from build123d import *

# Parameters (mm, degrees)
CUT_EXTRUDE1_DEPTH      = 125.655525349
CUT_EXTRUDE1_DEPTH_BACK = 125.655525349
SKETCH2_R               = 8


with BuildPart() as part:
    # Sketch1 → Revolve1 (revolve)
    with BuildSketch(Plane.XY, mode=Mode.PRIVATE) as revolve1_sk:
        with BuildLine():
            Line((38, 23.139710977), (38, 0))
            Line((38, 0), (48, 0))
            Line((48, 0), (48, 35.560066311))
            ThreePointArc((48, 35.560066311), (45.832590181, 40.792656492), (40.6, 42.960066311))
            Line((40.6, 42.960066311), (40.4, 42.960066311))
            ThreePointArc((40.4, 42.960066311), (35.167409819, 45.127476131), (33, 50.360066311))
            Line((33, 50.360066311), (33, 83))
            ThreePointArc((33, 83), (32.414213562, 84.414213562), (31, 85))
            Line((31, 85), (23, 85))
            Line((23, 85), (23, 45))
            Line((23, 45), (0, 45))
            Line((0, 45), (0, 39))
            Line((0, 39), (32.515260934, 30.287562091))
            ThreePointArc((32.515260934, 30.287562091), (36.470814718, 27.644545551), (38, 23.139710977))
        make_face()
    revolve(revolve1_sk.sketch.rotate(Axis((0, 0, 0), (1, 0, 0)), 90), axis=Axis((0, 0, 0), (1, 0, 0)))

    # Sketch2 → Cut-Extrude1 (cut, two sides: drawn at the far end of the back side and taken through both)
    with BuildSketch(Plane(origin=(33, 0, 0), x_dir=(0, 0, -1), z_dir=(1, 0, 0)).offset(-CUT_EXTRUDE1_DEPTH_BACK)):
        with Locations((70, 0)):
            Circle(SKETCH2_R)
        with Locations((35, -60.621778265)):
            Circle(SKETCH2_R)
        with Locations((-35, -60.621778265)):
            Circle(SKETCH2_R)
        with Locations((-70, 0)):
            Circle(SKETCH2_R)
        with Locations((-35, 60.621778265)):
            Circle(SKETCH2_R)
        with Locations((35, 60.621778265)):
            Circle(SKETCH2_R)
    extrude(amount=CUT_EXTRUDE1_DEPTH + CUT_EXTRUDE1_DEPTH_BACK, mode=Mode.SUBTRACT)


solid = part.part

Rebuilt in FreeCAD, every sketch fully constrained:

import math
import FreeCAD as App
import Part
import Sketcher
Q = App.Units.Quantity

doc = App.newDocument("Part")
body = doc.addObject("PartDesign::Body", "Body")

sketch1 = body.newObject("Sketcher::SketchObject", "Sketch")
sketch1.AttachmentSupport = (doc.getObject("XY_Plane"), [""])
sketch1.MapMode = "FlatFace"
sketch1.addGeometry(Part.LineSegment(App.Vector(38, 23.14, 0), App.Vector(38, 0, 0)), False)
sketch1.addGeometry(Part.LineSegment(App.Vector(38, 0, 0), App.Vector(48, 0, 0)), False)
sketch1.addGeometry(Part.LineSegment(App.Vector(48, 0, 0), App.Vector(48, 35.56, 0)), False)
sketch1.addGeometry(Part.ArcOfCircle(Part.Circle(App.Vector(40.6, 35.56, 0), App.Vector(0, 0, 1), 7.4), math.radians(0), math.radians(90)), False)
sketch1.addGeometry(Part.LineSegment(App.Vector(40.6, 42.96, 0), App.Vector(40.4, 42.96, 0)), False)
sketch1.addGeometry(Part.ArcOfCircle(Part.Circle(App.Vector(40.4, 50.36, 0), App.Vector(0, 0, 1), 7.4), math.radians(-180), math.radians(-90)), False)
sketch1.addGeometry(Part.LineSegment(App.Vector(33, 50.36, 0), App.Vector(33, 83, 0)), False)
sketch1.addGeometry(Part.ArcOfCircle(Part.Circle(App.Vector(31, 83, 0), App.Vector(0, 0, 1), 2), math.radians(0), math.radians(90)), False)
sketch1.addGeometry(Part.LineSegment(App.Vector(31, 85, 0), App.Vector(23, 85, 0)), False)
sketch1.addGeometry(Part.LineSegment(App.Vector(23, 85, 0), App.Vector(23, 45, 0)), False)
sketch1.addGeometry(Part.LineSegment(App.Vector(23, 45, 0), App.Vector(0, 45, 0)), False)
sketch1.addGeometry(Part.LineSegment(App.Vector(0, 45, 0), App.Vector(0, 39, 0)), False)
sketch1.addGeometry(Part.LineSegment(App.Vector(0, 39, 0), App.Vector(32.52, 30.29, 0)), False)
sketch1.addGeometry(Part.ArcOfCircle(Part.Circle(App.Vector(30.6, 23.14, 0), App.Vector(0, 0, 1), 7.4), math.radians(0), math.radians(75)), False)
sketch1.addConstraint(Sketcher.Constraint("Coincident", 0, 2, 1, 1))
sketch1.addConstraint(Sketcher.Constraint("Coincident", 1, 2, 2, 1))
sketch1.addConstraint(Sketcher.Constraint("Tangent", 2, 2, 3, 1))
sketch1.addConstraint(Sketcher.Constraint("Tangent", 3, 2, 4, 1))
sketch1.addConstraint(Sketcher.Constraint("Tangent", 4, 2, 5, 2))
sketch1.addConstraint(Sketcher.Constraint("Tangent", 5, 1, 6, 1))
sketch1.addConstraint(Sketcher.Constraint("Tangent", 6, 2, 7, 1))
sketch1.addConstraint(Sketcher.Constraint("Tangent", 7, 2, 8, 1))
sketch1.addConstraint(Sketcher.Constraint("Coincident", 8, 2, 9, 1))
sketch1.addConstraint(Sketcher.Constraint("Coincident", 9, 2, 10, 1))
sketch1.addConstraint(Sketcher.Constraint("Coincident", 10, 2, 11, 1))
sketch1.addConstraint(Sketcher.Constraint("Coincident", 11, 2, 12, 1))
sketch1.addConstraint(Sketcher.Constraint("Tangent", 12, 2, 13, 2))
sketch1.addConstraint(Sketcher.Constraint("Tangent", 13, 1, 0, 1))
sketch1.addConstraint(Sketcher.Constraint("Vertical", 0))
sketch1.addConstraint(Sketcher.Constraint("Horizontal", 1))
sketch1.addConstraint(Sketcher.Constraint("Vertical", 2))
sketch1.addConstraint(Sketcher.Constraint("Horizontal", 4))
sketch1.addConstraint(Sketcher.Constraint("Vertical", 6))
sketch1.addConstraint(Sketcher.Constraint("Horizontal", 8))
sketch1.addConstraint(Sketcher.Constraint("Vertical", 9))
sketch1.addConstraint(Sketcher.Constraint("Horizontal", 10))
sketch1.addConstraint(Sketcher.Constraint("Vertical", 11))
sketch1.addConstraint(Sketcher.Constraint("Equal", 3, 5))
sketch1.addConstraint(Sketcher.Constraint("Equal", 5, 13))
sketch1.addConstraint(Sketcher.Constraint("PointOnObject", 0, 2, -1))
sketch1.addConstraint(Sketcher.Constraint("PointOnObject", 10, 2, -2))
sketch1.addConstraint(Sketcher.Constraint("Radius", 7, 2.0))
sketch1.addConstraint(Sketcher.Constraint("Radius", 3, 7.4))
sketch1.addConstraint(Sketcher.Constraint("DistanceX", 1, 1, 1, 2, 10.0))
sketch1.addConstraint(Sketcher.Constraint("DistanceX", 8, 2, 8, 1, 8.0))
sketch1.addConstraint(Sketcher.Constraint("DistanceX", 10, 2, 10, 1, 23.0))
sketch1.addConstraint(Sketcher.Constraint("DistanceY", 9, 2, 9, 1, 40.0))
sketch1.addConstraint(Sketcher.Constraint("DistanceY", 11, 2, 11, 1, 6.0))
sketch1.addConstraint(Sketcher.Constraint("Angle", 12, Q("-15 deg")))
sketch1.addConstraint(Sketcher.Constraint("DistanceX", 4, 2, 4, 1, 0.2))
sketch1.addConstraint(Sketcher.Constraint("DistanceY", -1, 1, 7, 3, 83.0))
sketch1.addConstraint(Sketcher.Constraint("DistanceY", 2, 1, 2, 2, 35.560066))
revolution = body.newObject("PartDesign::Revolution", "Revolution")
revolution.Profile = sketch1
revolution.ReferenceAxis = (sketch1, ["H_Axis"])
revolution.Angle = 360

sketch2 = body.newObject("Sketcher::SketchObject", "Sketch001")
sketch2.AttachmentSupport = (doc.getObject("YZ_Plane"), [""])
sketch2.MapMode = "FlatFace"
sketch2.AttachmentOffset = App.Placement(App.Vector(0, 0, 33), App.Rotation())
sketch2.addGeometry(Part.Circle(App.Vector(0, -70, 0), App.Vector(0, 0, 1), 8), False)
sketch2.addGeometry(Part.Circle(App.Vector(-61, -35, 0), App.Vector(0, 0, 1), 8), False)
sketch2.addGeometry(Part.Circle(App.Vector(-61, 35, 0), App.Vector(0, 0, 1), 8), False)
sketch2.addGeometry(Part.Circle(App.Vector(0, 70, 0), App.Vector(0, 0, 1), 8), False)
sketch2.addGeometry(Part.Circle(App.Vector(61, 35, 0), App.Vector(0, 0, 1), 8), False)
sketch2.addGeometry(Part.Circle(App.Vector(61, -35, 0), App.Vector(0, 0, 1), 8), False)
sketch2.addConstraint(Sketcher.Constraint("Equal", 0, 1))
sketch2.addConstraint(Sketcher.Constraint("Equal", 1, 2))
sketch2.addConstraint(Sketcher.Constraint("Equal", 2, 3))
sketch2.addConstraint(Sketcher.Constraint("Equal", 3, 4))
sketch2.addConstraint(Sketcher.Constraint("Equal", 4, 5))
sketch2.addConstraint(Sketcher.Constraint("Symmetric", 0, 3, 3, 3, -1, 1))
sketch2.addConstraint(Sketcher.Constraint("Symmetric", 1, 3, 4, 3, -1, 1))
sketch2.addConstraint(Sketcher.Constraint("Symmetric", 2, 3, 5, 3, -1, 1))
sketch2.addConstraint(Sketcher.Constraint("Symmetric", 2, 3, 4, 3, -2))
sketch2.addConstraint(Sketcher.Constraint("PointOnObject", 0, 3, -2))
sketch2.addConstraint(Sketcher.Constraint("Diameter", 0, 16.0))
sketch2.addConstraint(Sketcher.Constraint("DistanceY", 0, 3, -1, 1, 70.0))
sketch2.addConstraint(Sketcher.Constraint("DistanceY", 1, 3, -1, 1, 35.0))
sketch2.addConstraint(Sketcher.Constraint("DistanceX", 1, 3, -1, 1, 60.621778))
pocket1 = body.newObject("PartDesign::Pocket", "Pocket")
pocket1.Profile = sketch2
pocket1.Type = "ThroughAll"
pocket1.Midplane = True

doc.recompute()
